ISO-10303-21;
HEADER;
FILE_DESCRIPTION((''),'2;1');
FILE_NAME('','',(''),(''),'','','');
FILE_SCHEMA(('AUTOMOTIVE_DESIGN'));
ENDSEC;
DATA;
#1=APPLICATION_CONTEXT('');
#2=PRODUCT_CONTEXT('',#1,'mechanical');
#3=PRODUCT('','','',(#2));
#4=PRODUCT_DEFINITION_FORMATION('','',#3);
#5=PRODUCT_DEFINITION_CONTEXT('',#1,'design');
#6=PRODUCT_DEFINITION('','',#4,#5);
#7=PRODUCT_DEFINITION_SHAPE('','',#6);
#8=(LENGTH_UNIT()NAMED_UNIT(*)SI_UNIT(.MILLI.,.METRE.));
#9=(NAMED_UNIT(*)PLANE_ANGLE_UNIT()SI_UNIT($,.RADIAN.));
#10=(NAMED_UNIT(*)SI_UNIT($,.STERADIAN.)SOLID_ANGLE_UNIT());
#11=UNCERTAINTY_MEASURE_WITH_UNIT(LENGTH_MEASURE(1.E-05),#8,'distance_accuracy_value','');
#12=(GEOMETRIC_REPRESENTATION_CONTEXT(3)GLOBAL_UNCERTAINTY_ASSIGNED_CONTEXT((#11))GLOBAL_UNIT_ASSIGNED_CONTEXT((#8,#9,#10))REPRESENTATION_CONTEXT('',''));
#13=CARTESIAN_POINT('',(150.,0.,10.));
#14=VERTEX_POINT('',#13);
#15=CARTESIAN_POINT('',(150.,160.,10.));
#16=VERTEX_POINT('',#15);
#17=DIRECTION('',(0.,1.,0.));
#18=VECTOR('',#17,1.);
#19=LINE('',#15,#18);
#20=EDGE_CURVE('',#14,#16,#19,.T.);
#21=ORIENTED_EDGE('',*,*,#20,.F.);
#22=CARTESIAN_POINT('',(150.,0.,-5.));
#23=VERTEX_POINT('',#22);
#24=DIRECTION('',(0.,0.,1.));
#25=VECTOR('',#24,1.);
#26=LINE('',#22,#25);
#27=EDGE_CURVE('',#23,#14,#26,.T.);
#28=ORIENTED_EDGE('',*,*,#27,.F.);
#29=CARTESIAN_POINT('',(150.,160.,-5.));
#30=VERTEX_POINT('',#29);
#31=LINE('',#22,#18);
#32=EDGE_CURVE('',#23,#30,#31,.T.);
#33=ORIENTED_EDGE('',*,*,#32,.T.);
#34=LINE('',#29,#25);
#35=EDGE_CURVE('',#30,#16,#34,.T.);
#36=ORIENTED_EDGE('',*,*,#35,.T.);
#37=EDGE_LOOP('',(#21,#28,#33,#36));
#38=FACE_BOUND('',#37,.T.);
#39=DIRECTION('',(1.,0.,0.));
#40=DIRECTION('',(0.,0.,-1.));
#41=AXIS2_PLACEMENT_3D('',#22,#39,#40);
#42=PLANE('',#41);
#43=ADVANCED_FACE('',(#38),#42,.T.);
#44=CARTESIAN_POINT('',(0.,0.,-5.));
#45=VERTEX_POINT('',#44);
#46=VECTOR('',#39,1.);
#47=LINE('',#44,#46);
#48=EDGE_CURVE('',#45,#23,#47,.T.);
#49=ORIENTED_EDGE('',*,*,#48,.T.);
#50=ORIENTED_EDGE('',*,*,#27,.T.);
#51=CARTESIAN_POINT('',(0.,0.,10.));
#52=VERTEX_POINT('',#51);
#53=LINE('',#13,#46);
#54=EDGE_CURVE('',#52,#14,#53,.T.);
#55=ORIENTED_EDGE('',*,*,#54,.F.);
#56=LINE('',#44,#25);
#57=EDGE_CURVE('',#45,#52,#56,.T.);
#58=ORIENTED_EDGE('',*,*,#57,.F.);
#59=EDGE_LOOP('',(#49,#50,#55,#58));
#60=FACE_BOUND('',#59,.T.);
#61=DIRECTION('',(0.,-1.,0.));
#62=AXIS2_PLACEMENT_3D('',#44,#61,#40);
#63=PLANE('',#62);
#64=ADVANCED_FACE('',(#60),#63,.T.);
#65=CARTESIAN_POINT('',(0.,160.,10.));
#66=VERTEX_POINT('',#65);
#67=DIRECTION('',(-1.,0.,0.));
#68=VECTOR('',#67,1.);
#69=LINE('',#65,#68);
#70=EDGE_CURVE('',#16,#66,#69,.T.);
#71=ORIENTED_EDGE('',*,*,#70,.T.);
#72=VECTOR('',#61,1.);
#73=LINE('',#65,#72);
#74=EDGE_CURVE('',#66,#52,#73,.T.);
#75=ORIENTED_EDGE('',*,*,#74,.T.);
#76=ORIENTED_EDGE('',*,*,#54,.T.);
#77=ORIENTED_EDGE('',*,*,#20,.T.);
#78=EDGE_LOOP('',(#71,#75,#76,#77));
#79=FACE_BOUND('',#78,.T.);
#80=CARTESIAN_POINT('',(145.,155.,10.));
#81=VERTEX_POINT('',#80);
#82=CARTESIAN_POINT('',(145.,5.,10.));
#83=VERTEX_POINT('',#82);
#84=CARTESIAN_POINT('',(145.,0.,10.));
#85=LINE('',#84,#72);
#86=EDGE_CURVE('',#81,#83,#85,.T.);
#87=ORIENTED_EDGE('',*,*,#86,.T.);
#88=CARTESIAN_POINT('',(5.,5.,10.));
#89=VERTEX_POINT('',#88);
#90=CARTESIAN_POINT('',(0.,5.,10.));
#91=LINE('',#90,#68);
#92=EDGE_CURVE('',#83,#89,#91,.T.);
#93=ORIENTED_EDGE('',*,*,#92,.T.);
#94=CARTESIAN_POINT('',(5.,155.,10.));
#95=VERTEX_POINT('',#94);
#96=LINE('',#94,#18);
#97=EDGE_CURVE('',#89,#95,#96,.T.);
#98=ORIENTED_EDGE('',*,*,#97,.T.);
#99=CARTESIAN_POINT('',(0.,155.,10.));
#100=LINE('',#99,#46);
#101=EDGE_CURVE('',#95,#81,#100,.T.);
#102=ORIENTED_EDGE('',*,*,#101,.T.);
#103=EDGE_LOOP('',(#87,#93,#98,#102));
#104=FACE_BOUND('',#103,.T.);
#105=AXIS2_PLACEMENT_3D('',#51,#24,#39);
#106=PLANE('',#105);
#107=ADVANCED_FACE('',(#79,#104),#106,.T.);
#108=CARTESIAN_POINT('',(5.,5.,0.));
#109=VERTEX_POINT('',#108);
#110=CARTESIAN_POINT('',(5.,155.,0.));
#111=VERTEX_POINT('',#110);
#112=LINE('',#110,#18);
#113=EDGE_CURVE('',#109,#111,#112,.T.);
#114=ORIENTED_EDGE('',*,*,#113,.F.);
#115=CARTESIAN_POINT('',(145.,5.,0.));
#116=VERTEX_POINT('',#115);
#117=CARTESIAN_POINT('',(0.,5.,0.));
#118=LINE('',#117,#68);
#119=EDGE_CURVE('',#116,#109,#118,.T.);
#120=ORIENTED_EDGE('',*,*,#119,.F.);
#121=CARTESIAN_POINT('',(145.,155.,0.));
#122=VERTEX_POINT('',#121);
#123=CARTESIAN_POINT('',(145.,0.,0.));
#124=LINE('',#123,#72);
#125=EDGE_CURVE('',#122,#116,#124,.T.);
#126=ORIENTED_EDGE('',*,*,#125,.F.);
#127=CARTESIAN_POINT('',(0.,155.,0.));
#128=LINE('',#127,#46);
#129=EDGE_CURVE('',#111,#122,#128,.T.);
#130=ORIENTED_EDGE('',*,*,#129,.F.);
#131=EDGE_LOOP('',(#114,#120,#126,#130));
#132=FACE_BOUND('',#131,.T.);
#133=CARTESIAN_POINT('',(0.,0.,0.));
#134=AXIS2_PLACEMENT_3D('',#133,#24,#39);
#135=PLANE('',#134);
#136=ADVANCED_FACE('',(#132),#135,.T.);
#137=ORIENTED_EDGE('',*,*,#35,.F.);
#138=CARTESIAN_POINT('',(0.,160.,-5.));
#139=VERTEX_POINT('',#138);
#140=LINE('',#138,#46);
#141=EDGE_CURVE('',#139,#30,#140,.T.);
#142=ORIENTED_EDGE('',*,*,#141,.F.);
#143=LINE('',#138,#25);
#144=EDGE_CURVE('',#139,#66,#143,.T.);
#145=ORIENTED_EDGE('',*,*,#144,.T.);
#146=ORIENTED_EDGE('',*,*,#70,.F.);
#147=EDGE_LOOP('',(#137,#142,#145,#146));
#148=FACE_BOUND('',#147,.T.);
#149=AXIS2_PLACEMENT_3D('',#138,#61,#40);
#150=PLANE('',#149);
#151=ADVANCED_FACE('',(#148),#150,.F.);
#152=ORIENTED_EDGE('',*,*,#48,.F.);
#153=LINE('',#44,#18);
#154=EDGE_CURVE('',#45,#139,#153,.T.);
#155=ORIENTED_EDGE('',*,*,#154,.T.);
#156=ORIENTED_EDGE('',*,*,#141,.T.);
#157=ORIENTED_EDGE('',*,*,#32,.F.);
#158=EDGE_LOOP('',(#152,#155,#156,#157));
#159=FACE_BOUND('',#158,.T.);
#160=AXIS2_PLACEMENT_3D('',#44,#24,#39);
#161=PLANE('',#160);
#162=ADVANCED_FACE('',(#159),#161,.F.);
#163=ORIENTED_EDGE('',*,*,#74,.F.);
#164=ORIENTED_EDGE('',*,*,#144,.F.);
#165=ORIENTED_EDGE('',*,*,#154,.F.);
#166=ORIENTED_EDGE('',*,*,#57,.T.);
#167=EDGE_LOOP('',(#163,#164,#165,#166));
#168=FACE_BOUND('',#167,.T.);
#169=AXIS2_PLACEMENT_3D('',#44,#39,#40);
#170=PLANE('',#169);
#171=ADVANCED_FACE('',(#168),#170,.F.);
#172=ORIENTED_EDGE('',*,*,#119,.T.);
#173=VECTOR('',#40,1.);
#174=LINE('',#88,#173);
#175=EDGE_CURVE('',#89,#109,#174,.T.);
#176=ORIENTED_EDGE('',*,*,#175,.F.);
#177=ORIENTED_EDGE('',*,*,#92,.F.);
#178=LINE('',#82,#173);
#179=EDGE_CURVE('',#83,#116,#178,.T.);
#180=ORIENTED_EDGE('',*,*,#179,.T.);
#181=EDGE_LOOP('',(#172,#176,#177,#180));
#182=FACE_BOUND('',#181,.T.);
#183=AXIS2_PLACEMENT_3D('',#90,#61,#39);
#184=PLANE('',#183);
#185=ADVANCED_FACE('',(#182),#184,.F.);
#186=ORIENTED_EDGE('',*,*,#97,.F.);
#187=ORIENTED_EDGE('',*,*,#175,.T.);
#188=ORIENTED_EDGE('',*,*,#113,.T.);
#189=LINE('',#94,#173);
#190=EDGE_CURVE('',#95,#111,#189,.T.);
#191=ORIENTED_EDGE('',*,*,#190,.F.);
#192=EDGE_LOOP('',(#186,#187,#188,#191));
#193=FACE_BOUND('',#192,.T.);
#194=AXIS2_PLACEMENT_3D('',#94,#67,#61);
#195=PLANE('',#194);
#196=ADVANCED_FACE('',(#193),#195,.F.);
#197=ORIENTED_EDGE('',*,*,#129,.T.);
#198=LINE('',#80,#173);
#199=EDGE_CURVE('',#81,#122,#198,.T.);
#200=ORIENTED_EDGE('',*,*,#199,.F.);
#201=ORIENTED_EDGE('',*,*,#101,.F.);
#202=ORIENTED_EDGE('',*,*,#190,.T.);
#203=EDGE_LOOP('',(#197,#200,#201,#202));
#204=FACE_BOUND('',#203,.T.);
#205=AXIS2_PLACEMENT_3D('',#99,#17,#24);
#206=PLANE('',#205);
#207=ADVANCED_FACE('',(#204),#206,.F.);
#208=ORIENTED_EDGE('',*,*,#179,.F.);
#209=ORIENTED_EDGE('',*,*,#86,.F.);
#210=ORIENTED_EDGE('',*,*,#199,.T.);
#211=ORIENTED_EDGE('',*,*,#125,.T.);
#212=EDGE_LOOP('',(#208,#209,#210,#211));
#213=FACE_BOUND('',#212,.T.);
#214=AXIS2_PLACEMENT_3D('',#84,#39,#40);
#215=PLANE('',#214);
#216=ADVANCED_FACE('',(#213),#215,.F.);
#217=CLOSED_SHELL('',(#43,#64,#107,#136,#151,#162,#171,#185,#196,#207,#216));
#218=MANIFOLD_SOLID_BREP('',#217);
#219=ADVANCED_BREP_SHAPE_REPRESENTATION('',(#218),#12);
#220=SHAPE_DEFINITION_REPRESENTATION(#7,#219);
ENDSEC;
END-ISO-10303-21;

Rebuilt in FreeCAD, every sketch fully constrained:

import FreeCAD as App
import Part
import Sketcher

V = App.Vector

doc = App.newDocument("Part")
body = doc.addObject("PartDesign::Body", "Body")

# Sketch on XY plane
sketch1 = body.newObject("Sketcher::SketchObject", "Sketch")
sketch1.AttachmentSupport = (doc.getObject("XY_Plane"), [""])
sketch1.MapMode = "FlatFace"
sketch1.addGeometry([
    Part.LineSegment(V(0, 160, 0), V(0, 0, 0)),
    Part.LineSegment(V(0, 0, 0), V(150, 0, 0)),
    Part.LineSegment(V(150, 0, 0), V(150, 160, 0)),
    Part.LineSegment(V(150, 160, 0), V(0, 160, 0)),
], False)
sketch1.addConstraint([
    Sketcher.Constraint("Coincident", 0, 2, 1, 1),
    Sketcher.Constraint("Coincident", 1, 2, 2, 1),
    Sketcher.Constraint("Coincident", 2, 2, 3, 1),
    Sketcher.Constraint("Coincident", 3, 2, 0, 1),
    Sketcher.Constraint("Vertical", 0),
    Sketcher.Constraint("Horizontal", 1),
    Sketcher.Constraint("Vertical", 2),
    Sketcher.Constraint("Horizontal", 3),
    Sketcher.Constraint("Coincident", 0, 2, -1, 1),
    Sketcher.Constraint("DistanceX", 1, 1, 1, 2, 150.0),
    Sketcher.Constraint("DistanceY", 0, 2, 0, 1, 160.0),
])
pad1 = body.newObject("PartDesign::Pad", "Pad")
pad1.Profile = sketch1
pad1.Length = 5
pad1.Reversed = True

# Sketch on XY plane
sketch2 = body.newObject("Sketcher::SketchObject", "Sketch001")
sketch2.AttachmentSupport = (doc.getObject("XY_Plane"), [""])
sketch2.MapMode = "FlatFace"
sketch2.addGeometry([
    Part.LineSegment(V(0, 160, 0), V(0, 155, 0)),
    Part.LineSegment(V(0, 155, 0), V(150, 155, 0)),
    Part.LineSegment(V(150, 155, 0), V(150, 160, 0)),
    Part.LineSegment(V(150, 160, 0), V(0, 160, 0)),
], False)
sketch2.addConstraint([
    Sketcher.Constraint("Coincident", 0, 2, 1, 1),
    Sketcher.Constraint("Coincident", 1, 2, 2, 1),
    Sketcher.Constraint("Coincident", 2, 2, 3, 1),
    Sketcher.Constraint("Coincident", 3, 2, 0, 1),
    Sketcher.Constraint("Vertical", 0),
    Sketcher.Constraint("Horizontal", 1),
    Sketcher.Constraint("Vertical", 2),
    Sketcher.Constraint("Horizontal", 3),
    Sketcher.Constraint("PointOnObject", 0, 2, -2),
    Sketcher.Constraint("DistanceX", 1, 1, 1, 2, 150.0),
    Sketcher.Constraint("DistanceY", 0, 2, 0, 1, 5.0),
    Sketcher.Constraint("DistanceY", -1, 1, 0, 2, 155.0),
])
pad2 = body.newObject("PartDesign::Pad", "Pad001")
pad2.Profile = sketch2
pad2.Length = 10

# Sketch on XY plane
sketch3 = body.newObject("Sketcher::SketchObject", "Sketch002")
sketch3.AttachmentSupport = (doc.getObject("XY_Plane"), [""])
sketch3.MapMode = "FlatFace"
sketch3.addGeometry([
    Part.LineSegment(V(145, 155, 0), V(145, 0, 0)),
    Part.LineSegment(V(145, 0, 0), V(150, 0, 0)),
    Part.LineSegment(V(150, 0, 0), V(150, 155, 0)),
    Part.LineSegment(V(150, 155, 0), V(145, 155, 0)),
], False)
sketch3.addConstraint([
    Sketcher.Constraint("Coincident", 0, 2, 1, 1),
    Sketcher.Constraint("Coincident", 1, 2, 2, 1),
    Sketcher.Constraint("Coincident", 2, 2, 3, 1),
    Sketcher.Constraint("Coincident", 3, 2, 0, 1),
    Sketcher.Constraint("Vertical", 0),
    Sketcher.Constraint("Horizontal", 1),
    Sketcher.Constraint("Vertical", 2),
    Sketcher.Constraint("Horizontal", 3),
    Sketcher.Constraint("PointOnObject", 0, 2, -1),
    Sketcher.Constraint("DistanceX", 1, 1, 1, 2, 5.0),
    Sketcher.Constraint("DistanceY", 0, 2, 0, 1, 155.0),
    Sketcher.Constraint("DistanceX", -1, 1, 0, 2, 145.0),
])
pad3 = body.newObject("PartDesign::Pad", "Pad002")
pad3.Profile = sketch3
pad3.Length = 10

# Sketch on XY plane
sketch4 = body.newObject("Sketcher::SketchObject", "Sketch003")
sketch4.AttachmentSupport = (doc.getObject("XY_Plane"), [""])
sketch4.MapMode = "FlatFace"
sketch4.addGeometry([
    Part.LineSegment(V(0, 5, 0), V(0, 0, 0)),
    Part.LineSegment(V(0, 0, 0), V(145, 0, 0)),
    Part.LineSegment(V(145, 0, 0), V(145, 5, 0)),
    Part.LineSegment(V(145, 5, 0), V(0, 5, 0)),
], False)
sketch4.addConstraint([
    Sketcher.Constraint("Coincident", 0, 2, 1, 1),
    Sketcher.Constraint("Coincident", 1, 2, 2, 1),
    Sketcher.Constraint("Coincident", 2, 2, 3, 1),
    Sketcher.Constraint("Coincident", 3, 2, 0, 1),
    Sketcher.Constraint("Vertical", 0),
    Sketcher.Constraint("Horizontal", 1),
    Sketcher.Constraint("Vertical", 2),
    Sketcher.Constraint("Horizontal", 3),
    Sketcher.Constraint("Coincident", 0, 2, -1, 1),
    Sketcher.Constraint("DistanceX", 1, 1, 1, 2, 145.0),
    Sketcher.Constraint("DistanceY", 0, 2, 0, 1, 5.0),
])
pad4 = body.newObject("PartDesign::Pad", "Pad003")
pad4.Profile = sketch4
pad4.Length = 10

# Sketch on XY plane
sketch5 = body.newObject("Sketcher::SketchObject", "Sketch004")
sketch5.AttachmentSupport = (doc.getObject("XY_Plane"), [""])
sketch5.MapMode = "FlatFace"
sketch5.addGeometry([
    Part.LineSegment(V(0, 155, 0), V(0, 5, 0)),
    Part.LineSegment(V(0, 5, 0), V(5, 5, 0)),
    Part.LineSegment(V(5, 5, 0), V(5, 155, 0)),
    Part.LineSegment(V(5, 155, 0), V(0, 155, 0)),
], False)
sketch5.addConstraint([
    Sketcher.Constraint("Coincident", 0, 2, 1, 1),
    Sketcher.Constraint("Coincident", 1, 2, 2, 1),
    Sketcher.Constraint("Coincident", 2, 2, 3, 1),
    Sketcher.Constraint("Coincident", 3, 2, 0, 1),
    Sketcher.Constraint("Vertical", 0),
    Sketcher.Constraint("Horizontal", 1),
    Sketcher.Constraint("Vertical", 2),
    Sketcher.Constraint("Horizontal", 3),
    Sketcher.Constraint("PointOnObject", 0, 2, -2),
    Sketcher.Constraint("DistanceX", 1, 1, 1, 2, 5.0),
    Sketcher.Constraint("DistanceY", 0, 2, 0, 1, 150.0),
    Sketcher.Constraint("DistanceY", -1, 1, 0, 2, 5.0),
])
pad5 = body.newObject("PartDesign::Pad", "Pad004")
pad5.Profile = sketch5
pad5.Length = 10

doc.recompute()
